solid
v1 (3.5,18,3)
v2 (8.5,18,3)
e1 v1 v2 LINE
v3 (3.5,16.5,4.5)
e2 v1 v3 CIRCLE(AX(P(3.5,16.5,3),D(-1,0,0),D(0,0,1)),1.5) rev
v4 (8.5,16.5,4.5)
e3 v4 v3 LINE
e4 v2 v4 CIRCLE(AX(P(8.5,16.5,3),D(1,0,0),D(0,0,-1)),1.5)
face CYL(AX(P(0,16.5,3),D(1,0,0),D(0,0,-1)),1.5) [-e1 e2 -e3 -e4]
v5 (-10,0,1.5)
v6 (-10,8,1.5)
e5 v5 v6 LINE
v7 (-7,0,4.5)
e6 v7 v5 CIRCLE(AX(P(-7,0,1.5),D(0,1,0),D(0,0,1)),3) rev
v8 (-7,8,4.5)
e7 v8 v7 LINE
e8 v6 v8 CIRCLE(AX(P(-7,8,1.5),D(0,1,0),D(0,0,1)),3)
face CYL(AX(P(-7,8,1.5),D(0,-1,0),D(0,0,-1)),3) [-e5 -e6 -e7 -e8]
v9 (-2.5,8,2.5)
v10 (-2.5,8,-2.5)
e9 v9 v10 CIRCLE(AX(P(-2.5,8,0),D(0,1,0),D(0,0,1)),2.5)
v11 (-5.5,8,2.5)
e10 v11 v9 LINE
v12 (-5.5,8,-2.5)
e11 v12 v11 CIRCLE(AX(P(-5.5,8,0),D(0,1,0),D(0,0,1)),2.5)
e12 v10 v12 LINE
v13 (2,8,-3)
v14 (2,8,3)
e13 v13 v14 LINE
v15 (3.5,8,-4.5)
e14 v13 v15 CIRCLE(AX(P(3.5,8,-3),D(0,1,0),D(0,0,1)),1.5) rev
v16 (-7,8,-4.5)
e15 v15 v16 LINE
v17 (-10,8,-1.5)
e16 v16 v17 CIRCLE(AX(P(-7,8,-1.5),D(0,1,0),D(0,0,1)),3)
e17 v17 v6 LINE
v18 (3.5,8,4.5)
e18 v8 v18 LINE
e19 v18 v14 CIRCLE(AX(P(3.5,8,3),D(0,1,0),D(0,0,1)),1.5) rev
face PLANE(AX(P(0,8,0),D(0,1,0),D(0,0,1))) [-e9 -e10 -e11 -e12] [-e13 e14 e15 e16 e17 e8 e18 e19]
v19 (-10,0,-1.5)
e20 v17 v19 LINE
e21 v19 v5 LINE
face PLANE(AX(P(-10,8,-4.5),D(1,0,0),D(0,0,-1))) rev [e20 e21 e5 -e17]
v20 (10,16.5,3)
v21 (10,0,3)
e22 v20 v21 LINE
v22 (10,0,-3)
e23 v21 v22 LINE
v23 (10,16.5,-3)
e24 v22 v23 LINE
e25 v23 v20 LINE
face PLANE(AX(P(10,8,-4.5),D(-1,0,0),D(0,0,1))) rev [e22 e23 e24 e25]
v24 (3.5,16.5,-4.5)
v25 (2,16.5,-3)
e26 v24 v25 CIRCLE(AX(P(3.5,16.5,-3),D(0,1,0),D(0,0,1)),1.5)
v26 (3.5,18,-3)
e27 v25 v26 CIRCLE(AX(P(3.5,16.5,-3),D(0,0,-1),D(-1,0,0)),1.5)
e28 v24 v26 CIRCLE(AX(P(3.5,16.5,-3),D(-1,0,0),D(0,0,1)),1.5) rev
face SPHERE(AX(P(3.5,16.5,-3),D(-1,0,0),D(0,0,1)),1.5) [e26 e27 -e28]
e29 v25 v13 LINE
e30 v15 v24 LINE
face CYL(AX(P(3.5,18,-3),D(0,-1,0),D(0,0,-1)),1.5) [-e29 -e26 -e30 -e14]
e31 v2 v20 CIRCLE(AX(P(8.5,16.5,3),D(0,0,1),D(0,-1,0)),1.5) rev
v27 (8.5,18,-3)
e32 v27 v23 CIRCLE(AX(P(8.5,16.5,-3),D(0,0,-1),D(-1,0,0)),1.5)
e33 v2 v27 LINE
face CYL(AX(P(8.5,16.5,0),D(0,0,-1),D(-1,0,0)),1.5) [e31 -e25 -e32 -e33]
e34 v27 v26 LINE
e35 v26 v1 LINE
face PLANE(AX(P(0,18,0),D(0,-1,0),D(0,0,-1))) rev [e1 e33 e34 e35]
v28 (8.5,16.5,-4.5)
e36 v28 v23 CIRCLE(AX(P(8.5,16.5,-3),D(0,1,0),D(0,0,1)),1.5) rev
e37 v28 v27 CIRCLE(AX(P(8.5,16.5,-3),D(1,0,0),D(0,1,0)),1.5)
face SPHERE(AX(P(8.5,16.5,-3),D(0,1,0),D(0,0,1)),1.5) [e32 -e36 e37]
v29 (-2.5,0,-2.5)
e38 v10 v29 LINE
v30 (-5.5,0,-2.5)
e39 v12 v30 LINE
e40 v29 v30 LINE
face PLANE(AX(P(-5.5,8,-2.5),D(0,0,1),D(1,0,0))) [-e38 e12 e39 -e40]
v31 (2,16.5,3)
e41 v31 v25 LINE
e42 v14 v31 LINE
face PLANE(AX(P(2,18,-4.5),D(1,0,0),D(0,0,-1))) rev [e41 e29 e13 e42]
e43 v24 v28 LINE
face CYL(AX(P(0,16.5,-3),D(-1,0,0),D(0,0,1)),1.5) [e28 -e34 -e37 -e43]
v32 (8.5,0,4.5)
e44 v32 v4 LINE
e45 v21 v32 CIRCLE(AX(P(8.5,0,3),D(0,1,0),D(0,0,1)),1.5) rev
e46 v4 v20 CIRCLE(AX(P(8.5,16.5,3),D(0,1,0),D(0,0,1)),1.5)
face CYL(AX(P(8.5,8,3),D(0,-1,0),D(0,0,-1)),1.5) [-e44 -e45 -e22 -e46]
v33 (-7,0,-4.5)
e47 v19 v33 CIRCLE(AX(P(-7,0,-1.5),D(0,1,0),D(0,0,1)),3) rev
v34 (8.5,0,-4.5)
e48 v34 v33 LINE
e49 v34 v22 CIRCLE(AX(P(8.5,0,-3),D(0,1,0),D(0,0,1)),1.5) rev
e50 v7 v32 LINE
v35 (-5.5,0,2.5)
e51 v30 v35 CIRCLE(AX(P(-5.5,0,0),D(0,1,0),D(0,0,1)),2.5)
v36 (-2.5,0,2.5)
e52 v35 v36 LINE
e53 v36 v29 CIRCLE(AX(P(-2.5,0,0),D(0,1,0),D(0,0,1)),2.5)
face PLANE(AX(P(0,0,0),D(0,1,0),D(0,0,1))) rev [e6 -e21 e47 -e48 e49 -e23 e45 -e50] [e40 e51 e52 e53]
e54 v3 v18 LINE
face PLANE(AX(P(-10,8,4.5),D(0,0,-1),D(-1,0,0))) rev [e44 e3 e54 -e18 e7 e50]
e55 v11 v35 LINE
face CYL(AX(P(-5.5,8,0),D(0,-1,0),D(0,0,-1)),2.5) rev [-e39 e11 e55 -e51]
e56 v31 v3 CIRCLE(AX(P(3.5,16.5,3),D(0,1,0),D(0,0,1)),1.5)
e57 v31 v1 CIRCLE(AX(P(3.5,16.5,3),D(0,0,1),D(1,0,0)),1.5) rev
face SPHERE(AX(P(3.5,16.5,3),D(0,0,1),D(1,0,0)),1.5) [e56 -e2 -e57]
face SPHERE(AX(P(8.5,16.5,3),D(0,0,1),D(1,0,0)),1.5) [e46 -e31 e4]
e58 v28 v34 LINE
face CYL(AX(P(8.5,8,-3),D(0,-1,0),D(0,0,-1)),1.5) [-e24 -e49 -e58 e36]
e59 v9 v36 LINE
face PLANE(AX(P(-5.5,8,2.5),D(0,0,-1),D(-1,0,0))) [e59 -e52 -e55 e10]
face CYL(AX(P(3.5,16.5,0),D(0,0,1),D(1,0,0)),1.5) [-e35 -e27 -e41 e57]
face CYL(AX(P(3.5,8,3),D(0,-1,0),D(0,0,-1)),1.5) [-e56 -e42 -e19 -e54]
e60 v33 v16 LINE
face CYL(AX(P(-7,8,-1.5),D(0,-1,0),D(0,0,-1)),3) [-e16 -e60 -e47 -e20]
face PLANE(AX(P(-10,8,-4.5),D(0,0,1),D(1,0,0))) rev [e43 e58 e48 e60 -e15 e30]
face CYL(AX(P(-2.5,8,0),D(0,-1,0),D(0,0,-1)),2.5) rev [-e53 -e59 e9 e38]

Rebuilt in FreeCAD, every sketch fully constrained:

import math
import FreeCAD as App
import Part
import Sketcher
from FreeCAD import Vector


def edges_at(feature, points):
    """Names of the edges that pass closest to the given points."""
    edges = feature.Shape.Edges
    near = lambda p: min(range(len(edges)), key=lambda i: edges[i].distToShape(Part.Vertex(*p))[0])
    return sorted({f"Edge{near(p) + 1}" for p in points})

doc = App.newDocument("Part")
body = doc.addObject("PartDesign::Body", "Body")

# Sketch on XZ plane
sketch1 = body.newObject("Sketcher::SketchObject", "Sketch")
sketch1.AttachmentSupport = (doc.getObject("XZ_Plane"), [""])
sketch1.MapMode = "FlatFace"
sketch1.addGeometry([
    Part.LineSegment(Vector(-10, -4.5, 0), Vector(-10, 4.5, 0)),  # 0
    Part.LineSegment(Vector(-10, 4.5, 0), Vector(10, 4.5, 0)),  # 1
    Part.LineSegment(Vector(10, 4.5, 0), Vector(10, -4.5, 0)),  # 2
    Part.LineSegment(Vector(10, -4.5, 0), Vector(-10, -4.5, 0)),  # 3
    Part.ArcOfCircle(Part.Circle(Vector(-5.5, 0, 0), Vector(0, 0, 1), 2.5), math.radians(90), math.radians(270)),  # 4
    Part.LineSegment(Vector(-5.5, -2.5, 0), Vector(-2.5, -2.5, 0)),  # 5
    Part.ArcOfCircle(Part.Circle(Vector(-2.5, 0, 0), Vector(0, 0, 1), 2.5), math.radians(-90), math.radians(90)),  # 6
    Part.LineSegment(Vector(-2.5, 2.5, 0), Vector(-5.5, 2.5, 0)),  # 7
], False)
sketch1.addConstraint([
    Sketcher.Constraint("Coincident", 0, 2, 1, 1),
    Sketcher.Constraint("Coincident", 1, 2, 2, 1),
    Sketcher.Constraint("Coincident", 2, 2, 3, 1),
    Sketcher.Constraint("Coincident", 3, 2, 0, 1),
    Sketcher.Constraint("Tangent", 4, 2, 5, 1),
    Sketcher.Constraint("Tangent", 5, 2, 6, 1),
    Sketcher.Constraint("Tangent", 6, 2, 7, 1),
    Sketcher.Constraint("Tangent", 7, 2, 4, 1),
    Sketcher.Constraint("Vertical", 0),
    Sketcher.Constraint("Horizontal", 1),
    Sketcher.Constraint("Vertical", 2),
    Sketcher.Constraint("Horizontal", 3),
    Sketcher.Constraint("Horizontal", 5),
    Sketcher.Constraint("Horizontal", 7),
    Sketcher.Constraint("Symmetric", 0, 2, 2, 2, -1, 1),
    Sketcher.Constraint("PointOnObject", 4, 3, -1),
    Sketcher.Constraint("Radius", 4, 2.5),
    Sketcher.Constraint("DistanceX", 1, 1, 1, 2, 20.0),
    Sketcher.Constraint("DistanceX", 5, 1, 5, 2, 3.0),
    Sketcher.Constraint("DistanceY", 0, 1, 0, 2, 9.0),
    Sketcher.Constraint("DistanceX", 4, 3, -1, 1, 5.5),
])
pad1 = body.newObject("PartDesign::Pad", "Pad")
pad1.Profile = sketch1
pad1.Length = 8
pad1.Reversed = True

# Sketch on XZ plane
sketch2 = body.newObject("Sketcher::SketchObject", "Sketch001")
sketch2.AttachmentSupport = (doc.getObject("XZ_Plane"), [""])
sketch2.MapMode = "FlatFace"
sketch2.AttachmentOffset = App.Placement(Vector(0, 0, -8), App.Rotation())
sketch2.addGeometry([
    Part.LineSegment(Vector(2, -4.5, 0), Vector(2, 4.5, 0)),
    Part.LineSegment(Vector(2, 4.5, 0), Vector(10, 4.5, 0)),
    Part.LineSegment(Vector(10, 4.5, 0), Vector(10, -4.5, 0)),
    Part.LineSegment(Vector(10, -4.5, 0), Vector(2, -4.5, 0)),
], False)
sketch2.addConstraint([
    Sketcher.Constraint("Coincident", 0, 2, 1, 1),
    Sketcher.Constraint("Coincident", 1, 2, 2, 1),
    Sketcher.Constraint("Coincident", 2, 2, 3, 1),
    Sketcher.Constraint("Coincident", 3, 2, 0, 1),
    Sketcher.Constraint("Vertical", 0),
    Sketcher.Constraint("Horizontal", 1),
    Sketcher.Constraint("Vertical", 2),
    Sketcher.Constraint("Horizontal", 3),
    Sketcher.Constraint("DistanceX", 1, 1, 1, 2, 8.0),
    Sketcher.Constraint("DistanceY", 0, 1, 0, 2, 9.0),
    Sketcher.Constraint("DistanceX", -1, 1, 0, 2, 2.0),
    Sketcher.Constraint("DistanceY", -1, 1, 0, 2, 4.5),
])
pad2 = body.newObject("PartDesign::Pad", "Pad001")
pad2.Profile = sketch2
pad2.Length = 10
pad2.Reversed = True
doc.recompute()

fillet = body.newObject("PartDesign::Fillet", "Fillet")
fillet.Base = (pad2, edges_at(pad2, [(-10, 4, 4.5), (-10, 4, -4.5)]))
fillet.Radius = 3
doc.recompute()

fillet2 = body.newObject("PartDesign::Fillet", "Fillet001")
fillet2.Base = (fillet, edges_at(fillet, [
    (2, 13, -4.5),
    (2, 13, 4.5),
    (10, 18, 0),
    (6, 18, -4.5),
    (2, 18, 0),
    (6, 18, 4.5),
    (10, 9, 4.5),
    (10, 9, -4.5),
]))
fillet2.Radius = 1.5

doc.recompute()
